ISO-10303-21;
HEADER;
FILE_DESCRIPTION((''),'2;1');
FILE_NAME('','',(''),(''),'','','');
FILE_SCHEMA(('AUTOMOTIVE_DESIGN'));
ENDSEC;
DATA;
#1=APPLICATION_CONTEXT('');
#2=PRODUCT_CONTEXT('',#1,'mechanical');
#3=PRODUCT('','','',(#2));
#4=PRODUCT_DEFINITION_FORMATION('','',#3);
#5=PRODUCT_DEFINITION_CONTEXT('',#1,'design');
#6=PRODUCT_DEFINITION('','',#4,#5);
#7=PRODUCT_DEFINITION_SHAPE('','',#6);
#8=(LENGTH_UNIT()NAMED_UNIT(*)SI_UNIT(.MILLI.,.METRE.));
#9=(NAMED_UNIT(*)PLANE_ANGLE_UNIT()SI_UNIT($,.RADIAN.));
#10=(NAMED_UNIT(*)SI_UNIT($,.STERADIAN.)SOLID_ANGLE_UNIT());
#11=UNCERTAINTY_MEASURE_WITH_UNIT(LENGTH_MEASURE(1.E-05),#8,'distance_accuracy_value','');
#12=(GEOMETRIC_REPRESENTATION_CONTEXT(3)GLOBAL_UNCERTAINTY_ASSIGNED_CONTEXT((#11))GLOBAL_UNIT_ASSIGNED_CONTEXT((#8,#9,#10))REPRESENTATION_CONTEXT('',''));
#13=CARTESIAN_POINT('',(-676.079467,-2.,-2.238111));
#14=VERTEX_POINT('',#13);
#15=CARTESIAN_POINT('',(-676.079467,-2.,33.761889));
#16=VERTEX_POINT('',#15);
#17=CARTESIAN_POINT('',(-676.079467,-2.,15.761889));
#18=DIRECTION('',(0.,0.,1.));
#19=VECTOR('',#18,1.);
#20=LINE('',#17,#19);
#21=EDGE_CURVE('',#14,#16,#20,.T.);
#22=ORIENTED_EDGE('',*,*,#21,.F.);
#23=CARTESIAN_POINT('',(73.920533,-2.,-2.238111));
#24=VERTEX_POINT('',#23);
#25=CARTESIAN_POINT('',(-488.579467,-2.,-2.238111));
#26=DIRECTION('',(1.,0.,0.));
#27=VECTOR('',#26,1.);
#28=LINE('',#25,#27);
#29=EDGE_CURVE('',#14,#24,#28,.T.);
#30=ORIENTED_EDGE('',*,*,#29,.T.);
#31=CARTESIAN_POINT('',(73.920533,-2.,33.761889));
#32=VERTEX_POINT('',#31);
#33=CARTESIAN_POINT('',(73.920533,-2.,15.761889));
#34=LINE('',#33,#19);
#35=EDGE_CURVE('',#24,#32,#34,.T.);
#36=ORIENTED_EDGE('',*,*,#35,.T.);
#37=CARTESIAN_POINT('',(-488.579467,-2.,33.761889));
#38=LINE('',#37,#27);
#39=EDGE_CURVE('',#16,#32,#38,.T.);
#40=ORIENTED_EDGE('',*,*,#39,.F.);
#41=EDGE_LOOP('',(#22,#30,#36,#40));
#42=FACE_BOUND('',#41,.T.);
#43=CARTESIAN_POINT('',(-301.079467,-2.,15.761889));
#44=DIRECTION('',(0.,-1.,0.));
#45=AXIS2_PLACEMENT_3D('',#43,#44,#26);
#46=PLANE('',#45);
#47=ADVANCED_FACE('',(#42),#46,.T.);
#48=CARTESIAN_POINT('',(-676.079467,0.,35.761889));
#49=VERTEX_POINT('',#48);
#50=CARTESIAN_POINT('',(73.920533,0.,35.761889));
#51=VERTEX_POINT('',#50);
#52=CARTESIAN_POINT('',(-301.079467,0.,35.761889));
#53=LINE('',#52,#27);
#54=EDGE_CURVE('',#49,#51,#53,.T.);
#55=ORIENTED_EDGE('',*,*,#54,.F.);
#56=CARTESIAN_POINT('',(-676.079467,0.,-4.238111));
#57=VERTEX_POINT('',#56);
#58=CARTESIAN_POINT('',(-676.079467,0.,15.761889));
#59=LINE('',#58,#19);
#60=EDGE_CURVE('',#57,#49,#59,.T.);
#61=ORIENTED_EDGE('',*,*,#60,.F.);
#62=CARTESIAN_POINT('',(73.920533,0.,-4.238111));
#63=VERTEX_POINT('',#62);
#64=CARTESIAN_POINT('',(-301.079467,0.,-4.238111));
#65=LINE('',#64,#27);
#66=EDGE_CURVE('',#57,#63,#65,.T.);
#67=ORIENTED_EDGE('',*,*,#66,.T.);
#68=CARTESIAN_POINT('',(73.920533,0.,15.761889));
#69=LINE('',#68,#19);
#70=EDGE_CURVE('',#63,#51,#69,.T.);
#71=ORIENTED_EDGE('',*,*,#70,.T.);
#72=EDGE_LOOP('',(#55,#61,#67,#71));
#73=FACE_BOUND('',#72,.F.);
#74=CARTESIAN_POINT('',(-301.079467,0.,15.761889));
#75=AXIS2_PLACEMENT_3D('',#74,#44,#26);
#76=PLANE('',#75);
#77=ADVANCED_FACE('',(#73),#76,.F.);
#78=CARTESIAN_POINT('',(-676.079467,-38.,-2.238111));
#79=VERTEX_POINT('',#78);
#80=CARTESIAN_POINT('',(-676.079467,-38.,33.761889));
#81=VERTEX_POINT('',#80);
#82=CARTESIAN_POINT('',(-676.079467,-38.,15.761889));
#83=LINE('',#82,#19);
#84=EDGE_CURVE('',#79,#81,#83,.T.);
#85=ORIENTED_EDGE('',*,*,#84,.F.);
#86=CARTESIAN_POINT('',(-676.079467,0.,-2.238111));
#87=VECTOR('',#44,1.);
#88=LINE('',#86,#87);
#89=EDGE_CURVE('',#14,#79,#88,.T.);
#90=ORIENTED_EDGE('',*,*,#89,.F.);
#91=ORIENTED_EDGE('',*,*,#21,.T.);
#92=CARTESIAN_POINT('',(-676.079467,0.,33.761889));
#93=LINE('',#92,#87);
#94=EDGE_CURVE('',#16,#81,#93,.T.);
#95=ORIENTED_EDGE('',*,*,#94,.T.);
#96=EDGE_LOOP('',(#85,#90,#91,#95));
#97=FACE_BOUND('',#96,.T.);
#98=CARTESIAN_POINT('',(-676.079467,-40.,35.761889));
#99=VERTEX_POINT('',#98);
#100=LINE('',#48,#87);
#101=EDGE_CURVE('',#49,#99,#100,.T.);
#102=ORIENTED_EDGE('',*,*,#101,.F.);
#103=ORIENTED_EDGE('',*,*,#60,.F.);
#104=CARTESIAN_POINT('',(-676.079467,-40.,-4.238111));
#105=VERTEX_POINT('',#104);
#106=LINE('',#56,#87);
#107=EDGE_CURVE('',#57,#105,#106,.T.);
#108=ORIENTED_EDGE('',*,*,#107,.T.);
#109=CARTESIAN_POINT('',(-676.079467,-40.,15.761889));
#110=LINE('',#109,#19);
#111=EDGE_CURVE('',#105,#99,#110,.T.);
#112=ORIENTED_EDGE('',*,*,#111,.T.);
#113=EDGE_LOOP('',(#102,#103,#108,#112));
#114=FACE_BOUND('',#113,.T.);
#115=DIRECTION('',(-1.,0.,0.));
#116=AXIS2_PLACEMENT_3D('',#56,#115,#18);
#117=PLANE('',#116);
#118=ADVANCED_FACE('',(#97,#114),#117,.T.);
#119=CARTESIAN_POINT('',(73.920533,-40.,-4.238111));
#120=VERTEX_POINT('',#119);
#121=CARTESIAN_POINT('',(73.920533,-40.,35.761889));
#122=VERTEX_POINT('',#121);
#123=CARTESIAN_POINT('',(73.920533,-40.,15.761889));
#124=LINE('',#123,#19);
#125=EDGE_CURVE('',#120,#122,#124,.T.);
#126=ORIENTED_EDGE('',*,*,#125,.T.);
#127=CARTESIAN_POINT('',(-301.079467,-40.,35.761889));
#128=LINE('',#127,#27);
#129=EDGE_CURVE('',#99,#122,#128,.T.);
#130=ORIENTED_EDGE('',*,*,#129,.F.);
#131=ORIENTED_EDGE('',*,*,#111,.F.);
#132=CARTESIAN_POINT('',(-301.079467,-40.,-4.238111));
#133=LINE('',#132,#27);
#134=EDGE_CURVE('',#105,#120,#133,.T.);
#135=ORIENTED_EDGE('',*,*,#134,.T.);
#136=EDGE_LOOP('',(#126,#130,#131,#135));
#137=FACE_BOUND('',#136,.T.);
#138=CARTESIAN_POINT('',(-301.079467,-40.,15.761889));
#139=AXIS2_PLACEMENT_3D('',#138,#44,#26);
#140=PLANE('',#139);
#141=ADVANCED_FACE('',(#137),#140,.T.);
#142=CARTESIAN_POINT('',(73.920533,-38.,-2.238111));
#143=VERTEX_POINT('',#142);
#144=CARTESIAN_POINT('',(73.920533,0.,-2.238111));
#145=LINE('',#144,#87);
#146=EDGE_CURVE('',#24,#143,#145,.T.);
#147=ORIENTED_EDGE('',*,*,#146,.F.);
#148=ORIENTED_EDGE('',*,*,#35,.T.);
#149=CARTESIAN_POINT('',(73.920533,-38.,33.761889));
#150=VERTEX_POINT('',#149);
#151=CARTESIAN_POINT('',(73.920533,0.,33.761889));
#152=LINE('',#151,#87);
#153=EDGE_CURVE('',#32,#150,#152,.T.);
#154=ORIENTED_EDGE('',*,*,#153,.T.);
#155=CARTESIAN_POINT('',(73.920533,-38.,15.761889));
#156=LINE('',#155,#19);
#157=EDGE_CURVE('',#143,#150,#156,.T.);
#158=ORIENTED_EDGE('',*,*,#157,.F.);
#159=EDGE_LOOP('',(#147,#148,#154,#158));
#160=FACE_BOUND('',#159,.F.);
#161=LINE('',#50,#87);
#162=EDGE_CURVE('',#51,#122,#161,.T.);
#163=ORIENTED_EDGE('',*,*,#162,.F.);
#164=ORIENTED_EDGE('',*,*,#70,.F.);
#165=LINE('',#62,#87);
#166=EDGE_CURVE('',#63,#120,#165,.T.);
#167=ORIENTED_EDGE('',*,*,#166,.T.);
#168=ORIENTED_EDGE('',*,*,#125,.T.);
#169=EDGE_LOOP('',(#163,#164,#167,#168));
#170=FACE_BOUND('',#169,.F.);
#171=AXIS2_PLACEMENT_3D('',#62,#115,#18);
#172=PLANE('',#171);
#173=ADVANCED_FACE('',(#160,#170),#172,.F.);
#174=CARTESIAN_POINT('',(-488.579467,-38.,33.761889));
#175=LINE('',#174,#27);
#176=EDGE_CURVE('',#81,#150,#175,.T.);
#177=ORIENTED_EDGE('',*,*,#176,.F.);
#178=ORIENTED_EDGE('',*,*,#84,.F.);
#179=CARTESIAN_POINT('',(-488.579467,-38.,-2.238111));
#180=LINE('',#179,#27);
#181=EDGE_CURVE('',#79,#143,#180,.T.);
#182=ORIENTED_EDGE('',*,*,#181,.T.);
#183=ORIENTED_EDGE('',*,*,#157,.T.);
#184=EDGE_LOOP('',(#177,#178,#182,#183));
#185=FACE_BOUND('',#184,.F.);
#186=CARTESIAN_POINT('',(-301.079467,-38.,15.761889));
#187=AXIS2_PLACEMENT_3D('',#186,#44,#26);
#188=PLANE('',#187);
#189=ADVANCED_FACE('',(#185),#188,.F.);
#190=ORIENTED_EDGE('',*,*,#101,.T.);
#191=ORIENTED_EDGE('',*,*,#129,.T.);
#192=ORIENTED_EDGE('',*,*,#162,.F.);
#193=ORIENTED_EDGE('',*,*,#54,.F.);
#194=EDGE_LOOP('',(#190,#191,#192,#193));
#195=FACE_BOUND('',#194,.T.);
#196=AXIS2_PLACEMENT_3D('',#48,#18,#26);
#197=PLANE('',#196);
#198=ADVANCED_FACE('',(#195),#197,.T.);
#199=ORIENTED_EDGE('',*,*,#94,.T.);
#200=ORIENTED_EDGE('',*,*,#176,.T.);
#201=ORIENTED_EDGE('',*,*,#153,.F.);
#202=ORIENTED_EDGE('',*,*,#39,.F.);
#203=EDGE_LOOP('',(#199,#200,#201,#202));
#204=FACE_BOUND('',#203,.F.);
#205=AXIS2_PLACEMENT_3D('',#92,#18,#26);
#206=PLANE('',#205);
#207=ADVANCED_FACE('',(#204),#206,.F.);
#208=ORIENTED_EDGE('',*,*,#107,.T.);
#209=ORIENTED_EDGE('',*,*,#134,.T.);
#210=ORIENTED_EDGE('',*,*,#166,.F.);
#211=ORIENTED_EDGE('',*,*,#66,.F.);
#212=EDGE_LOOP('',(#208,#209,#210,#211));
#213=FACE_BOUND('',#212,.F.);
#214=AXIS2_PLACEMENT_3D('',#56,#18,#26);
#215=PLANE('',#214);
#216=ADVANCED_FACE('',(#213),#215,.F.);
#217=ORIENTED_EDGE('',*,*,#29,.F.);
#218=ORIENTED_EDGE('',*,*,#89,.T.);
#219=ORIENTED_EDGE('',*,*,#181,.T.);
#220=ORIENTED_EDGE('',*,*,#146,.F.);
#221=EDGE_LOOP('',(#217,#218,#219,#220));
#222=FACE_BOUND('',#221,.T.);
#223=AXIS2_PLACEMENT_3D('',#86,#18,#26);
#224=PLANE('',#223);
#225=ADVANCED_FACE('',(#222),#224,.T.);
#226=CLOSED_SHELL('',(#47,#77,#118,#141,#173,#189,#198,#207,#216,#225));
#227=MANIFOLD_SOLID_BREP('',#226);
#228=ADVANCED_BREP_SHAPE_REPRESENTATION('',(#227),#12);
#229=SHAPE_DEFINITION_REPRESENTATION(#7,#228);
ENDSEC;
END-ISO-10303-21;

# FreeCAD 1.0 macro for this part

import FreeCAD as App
import Part
import Sketcher
from FreeCAD import Vector
Q = App.Units.Quantity


def faces_at(feature, points):
    """Names of the faces that lie closest to the given points."""
    faces = feature.Shape.Faces
    near = lambda p: min(range(len(faces)), key=lambda i: faces[i].distToShape(Part.Vertex(*p))[0])
    return sorted({f"Face{near(p) + 1}" for p in points})

doc = App.newDocument("Part")
body = doc.addObject("PartDesign::Body", "Body")

# Sketch on XZ plane
sketch1 = body.newObject("Sketcher::SketchObject", "Sketch")
sketch1.AttachmentSupport = (doc.getObject("XZ_Plane"), [""])
sketch1.MapMode = "FlatFace"
sketch1.addGeometry([
    Part.LineSegment(Vector(-676, 36, 0), Vector(-676, -4, 0)),
    Part.LineSegment(Vector(-676, -4, 0), Vector(74, -4, 0)),
    Part.LineSegment(Vector(74, -4, 0), Vector(74, 36, 0)),
    Part.LineSegment(Vector(74, 36, 0), Vector(-676, 36, 0)),
], False)
sketch1.addConstraint([
    Sketcher.Constraint("Coincident", 0, 2, 1, 1),
    Sketcher.Constraint("Coincident", 1, 2, 2, 1),
    Sketcher.Constraint("Coincident", 2, 2, 3, 1),
    Sketcher.Constraint("Coincident", 3, 2, 0, 1),
    Sketcher.Constraint("Vertical", 0),
    Sketcher.Constraint("Horizontal", 1),
    Sketcher.Constraint("Vertical", 2),
    Sketcher.Constraint("Horizontal", 3),
    Sketcher.Constraint("DistanceX", 1, 1, 1, 2, Q("750 mm")),
    Sketcher.Constraint("DistanceY", 0, 2, 0, 1, Q("40 mm")),
    Sketcher.Constraint("DistanceY", 0, 2, -1, 1, Q("4.238111 mm")),
    Sketcher.Constraint("DistanceX", 0, 2, -1, 1, Q("676.079467 mm")),
])
pad1 = body.newObject("PartDesign::Pad", "Pad")
pad1.Profile = sketch1
pad1.Length = 40
doc.recompute()

thickness = body.newObject("PartDesign::Thickness", "Thickness")
thickness.Base = (pad1, faces_at(pad1, [(-676.079, -20, 15.762), (73.921, -20, 15.762)]))
thickness.Value = 2
thickness.Reversed = True
thickness.Join = "Arc"

doc.recompute()
